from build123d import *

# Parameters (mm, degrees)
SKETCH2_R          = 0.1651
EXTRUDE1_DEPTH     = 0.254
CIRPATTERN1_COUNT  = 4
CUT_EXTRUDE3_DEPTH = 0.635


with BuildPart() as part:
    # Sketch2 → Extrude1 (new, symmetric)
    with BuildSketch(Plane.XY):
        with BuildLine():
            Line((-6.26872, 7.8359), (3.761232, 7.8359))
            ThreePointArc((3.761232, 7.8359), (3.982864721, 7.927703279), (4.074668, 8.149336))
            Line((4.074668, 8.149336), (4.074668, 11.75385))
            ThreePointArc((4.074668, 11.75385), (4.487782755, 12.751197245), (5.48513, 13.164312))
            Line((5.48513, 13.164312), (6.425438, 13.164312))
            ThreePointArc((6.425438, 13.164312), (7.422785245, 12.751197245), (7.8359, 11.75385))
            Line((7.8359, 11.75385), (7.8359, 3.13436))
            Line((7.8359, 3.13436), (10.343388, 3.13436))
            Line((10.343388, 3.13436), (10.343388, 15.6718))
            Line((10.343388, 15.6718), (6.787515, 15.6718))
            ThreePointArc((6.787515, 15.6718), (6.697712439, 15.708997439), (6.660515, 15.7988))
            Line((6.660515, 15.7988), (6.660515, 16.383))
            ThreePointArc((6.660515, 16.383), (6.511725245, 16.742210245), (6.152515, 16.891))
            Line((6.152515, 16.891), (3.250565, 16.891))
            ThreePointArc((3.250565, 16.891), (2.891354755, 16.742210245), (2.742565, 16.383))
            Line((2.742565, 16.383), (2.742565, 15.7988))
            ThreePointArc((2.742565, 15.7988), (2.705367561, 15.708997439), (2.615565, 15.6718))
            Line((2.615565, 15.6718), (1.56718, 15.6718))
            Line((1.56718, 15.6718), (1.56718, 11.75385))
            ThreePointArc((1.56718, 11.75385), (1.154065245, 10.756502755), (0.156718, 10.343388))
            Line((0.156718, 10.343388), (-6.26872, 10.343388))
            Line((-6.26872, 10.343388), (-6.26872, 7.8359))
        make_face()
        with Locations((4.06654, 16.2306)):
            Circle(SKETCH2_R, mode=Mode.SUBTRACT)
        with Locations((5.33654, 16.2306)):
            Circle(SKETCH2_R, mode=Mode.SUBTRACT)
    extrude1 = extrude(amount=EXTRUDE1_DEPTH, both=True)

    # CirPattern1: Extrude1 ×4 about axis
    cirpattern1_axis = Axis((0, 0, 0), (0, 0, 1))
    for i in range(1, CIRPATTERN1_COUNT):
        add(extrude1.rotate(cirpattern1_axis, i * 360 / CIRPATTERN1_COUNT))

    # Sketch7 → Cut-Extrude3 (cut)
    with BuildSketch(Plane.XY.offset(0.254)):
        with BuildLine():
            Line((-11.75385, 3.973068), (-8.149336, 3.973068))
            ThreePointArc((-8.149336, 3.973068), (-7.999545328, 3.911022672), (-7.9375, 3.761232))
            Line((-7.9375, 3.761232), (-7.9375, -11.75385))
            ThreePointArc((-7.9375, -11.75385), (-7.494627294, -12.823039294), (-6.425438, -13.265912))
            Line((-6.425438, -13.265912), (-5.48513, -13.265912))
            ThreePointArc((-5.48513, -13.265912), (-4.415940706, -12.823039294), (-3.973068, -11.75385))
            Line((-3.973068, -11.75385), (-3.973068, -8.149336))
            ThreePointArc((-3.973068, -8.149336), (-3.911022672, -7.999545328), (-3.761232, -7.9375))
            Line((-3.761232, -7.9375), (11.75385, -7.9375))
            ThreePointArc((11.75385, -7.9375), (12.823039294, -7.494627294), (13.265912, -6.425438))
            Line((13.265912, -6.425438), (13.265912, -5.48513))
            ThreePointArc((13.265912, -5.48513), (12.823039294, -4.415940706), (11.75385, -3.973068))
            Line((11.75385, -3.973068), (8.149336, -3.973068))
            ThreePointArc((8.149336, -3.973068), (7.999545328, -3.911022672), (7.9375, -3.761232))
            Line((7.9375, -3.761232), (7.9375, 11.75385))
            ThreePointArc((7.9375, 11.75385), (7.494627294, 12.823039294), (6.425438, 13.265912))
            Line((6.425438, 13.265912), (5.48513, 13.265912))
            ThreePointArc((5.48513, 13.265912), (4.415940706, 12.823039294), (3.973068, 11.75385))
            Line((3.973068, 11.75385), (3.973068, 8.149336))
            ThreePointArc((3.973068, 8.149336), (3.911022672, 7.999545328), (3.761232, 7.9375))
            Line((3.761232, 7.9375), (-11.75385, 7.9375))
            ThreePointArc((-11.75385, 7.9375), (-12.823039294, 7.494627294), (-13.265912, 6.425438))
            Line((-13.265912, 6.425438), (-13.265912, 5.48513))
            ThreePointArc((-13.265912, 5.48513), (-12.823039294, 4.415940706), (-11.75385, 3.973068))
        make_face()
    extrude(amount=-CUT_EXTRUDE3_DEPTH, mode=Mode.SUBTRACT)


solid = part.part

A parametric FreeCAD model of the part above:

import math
import FreeCAD as App
import Part
import Sketcher

V = App.Vector
Q = App.Units.Quantity

doc = App.newDocument("Part")
body = doc.addObject("PartDesign::Body", "Body")

# Sketch on XY plane
sketch1 = body.newObject("Sketcher::SketchObject", "Sketch")
sketch1.AttachmentSupport = (doc.getObject("XY_Plane"), [""])
sketch1.MapMode = "FlatFace"
sketch1.addGeometry(Part.LineSegment(V(-6.27, 7.84, 0), V(3.76, 7.84, 0)), False)
sketch1.addGeometry(Part.ArcOfCircle(Part.Circle(V(3.76, 8.15, 0), V(0, 0, 1), 0.31), math.radians(-90), math.radians(0)), False)
sketch1.addGeometry(Part.LineSegment(V(4.07, 8.15, 0), V(4.07, 11.75, 0)), False)
sketch1.addGeometry(Part.ArcOfCircle(Part.Circle(V(5.49, 11.75, 0), V(0, 0, 1), 1.41), math.radians(90), math.radians(180)), False)
sketch1.addGeometry(Part.LineSegment(V(5.49, 13.16, 0), V(6.43, 13.16, 0)), False)
sketch1.addGeometry(Part.ArcOfCircle(Part.Circle(V(6.43, 11.75, 0), V(0, 0, 1), 1.41), math.radians(0), math.radians(90)), False)
sketch1.addGeometry(Part.LineSegment(V(7.84, 11.75, 0), V(7.84, 3.13, 0)), False)
sketch1.addGeometry(Part.LineSegment(V(7.84, 3.13, 0), V(10.34, 3.13, 0)), False)
sketch1.addGeometry(Part.LineSegment(V(10.34, 3.13, 0), V(10.34, 15.67, 0)), False)
sketch1.addGeometry(Part.LineSegment(V(10.34, 15.67, 0), V(6.79, 15.67, 0)), False)
sketch1.addGeometry(Part.ArcOfCircle(Part.Circle(V(6.79, 15.8, 0), V(0, 0, 1), 0.13), math.radians(-180), math.radians(-90)), False)
sketch1.addGeometry(Part.LineSegment(V(6.66, 15.8, 0), V(6.66, 16.38, 0)), False)
sketch1.addGeometry(Part.ArcOfCircle(Part.Circle(V(6.15, 16.38, 0), V(0, 0, 1), 0.51), math.radians(0), math.radians(90)), False)
sketch1.addGeometry(Part.LineSegment(V(6.15, 16.89, 0), V(3.25, 16.89, 0)), False)
sketch1.addGeometry(Part.ArcOfCircle(Part.Circle(V(3.25, 16.38, 0), V(0, 0, 1), 0.51), math.radians(90), math.radians(180)), False)
sketch1.addGeometry(Part.LineSegment(V(2.74, 16.38, 0), V(2.74, 15.8, 0)), False)
sketch1.addGeometry(Part.ArcOfCircle(Part.Circle(V(2.62, 15.8, 0), V(0, 0, 1), 0.13), math.radians(-90), math.radians(0)), False)
sketch1.addGeometry(Part.LineSegment(V(2.62, 15.67, 0), V(1.57, 15.67, 0)), False)
sketch1.addGeometry(Part.LineSegment(V(1.57, 15.67, 0), V(1.57, 11.75, 0)), False)
sketch1.addGeometry(Part.ArcOfCircle(Part.Circle(V(0.16, 11.75, 0), V(0, 0, 1), 1.41), math.radians(-90), math.radians(0)), False)
sketch1.addGeometry(Part.LineSegment(V(0.16, 10.34, 0), V(-6.27, 10.34, 0)), False)
sketch1.addGeometry(Part.LineSegment(V(-6.27, 10.34, 0), V(-6.27, 7.84, 0)), False)
sketch1.addGeometry(Part.Circle(V(4.07, 16.23, 0), V(0, 0, 1), 0.17), False)
sketch1.addGeometry(Part.Circle(V(5.34, 16.23, 0), V(0, 0, 1), 0.17), False)
sketch1.addConstraint(Sketcher.Constraint("Tangent", 0, 2, 1, 1))
sketch1.addConstraint(Sketcher.Constraint("Tangent", 1, 2, 2, 1))
sketch1.addConstraint(Sketcher.Constraint("Tangent", 2, 2, 3, 2))
sketch1.addConstraint(Sketcher.Constraint("Tangent", 3, 1, 4, 1))
sketch1.addConstraint(Sketcher.Constraint("Tangent", 4, 2, 5, 2))
sketch1.addConstraint(Sketcher.Constraint("Tangent", 5, 1, 6, 1))
sketch1.addConstraint(Sketcher.Constraint("Coincident", 6, 2, 7, 1))
sketch1.addConstraint(Sketcher.Constraint("Coincident", 7, 2, 8, 1))
sketch1.addConstraint(Sketcher.Constraint("Coincident", 8, 2, 9, 1))
sketch1.addConstraint(Sketcher.Constraint("Tangent", 9, 2, 10, 2))
sketch1.addConstraint(Sketcher.Constraint("Tangent", 10, 1, 11, 1))
sketch1.addConstraint(Sketcher.Constraint("Tangent", 11, 2, 12, 1))
sketch1.addConstraint(Sketcher.Constraint("Tangent", 12, 2, 13, 1))
sketch1.addConstraint(Sketcher.Constraint("Tangent", 13, 2, 14, 1))
sketch1.addConstraint(Sketcher.Constraint("Tangent", 14, 2, 15, 1))
sketch1.addConstraint(Sketcher.Constraint("Tangent", 15, 2, 16, 2))
sketch1.addConstraint(Sketcher.Constraint("Tangent", 16, 1, 17, 1))
sketch1.addConstraint(Sketcher.Constraint("Coincident", 17, 2, 18, 1))
sketch1.addConstraint(Sketcher.Constraint("Tangent", 18, 2, 19, 2))
sketch1.addConstraint(Sketcher.Constraint("Tangent", 19, 1, 20, 1))
sketch1.addConstraint(Sketcher.Constraint("Coincident", 20, 2, 21, 1))
sketch1.addConstraint(Sketcher.Constraint("Coincident", 21, 2, 0, 1))
sketch1.addConstraint(Sketcher.Constraint("Horizontal", 0))
sketch1.addConstraint(Sketcher.Constraint("Vertical", 2))
sketch1.addConstraint(Sketcher.Constraint("Horizontal", 4))
sketch1.addConstraint(Sketcher.Constraint("Vertical", 6))
sketch1.addConstraint(Sketcher.Constraint("Horizontal", 7))
sketch1.addConstraint(Sketcher.Constraint("Vertical", 8))
sketch1.addConstraint(Sketcher.Constraint("Horizontal", 9))
sketch1.addConstraint(Sketcher.Constraint("Vertical", 11))
sketch1.addConstraint(Sketcher.Constraint("Horizontal", 13))
sketch1.addConstraint(Sketcher.Constraint("Vertical", 15))
sketch1.addConstraint(Sketcher.Constraint("Horizontal", 17))
sketch1.addConstraint(Sketcher.Constraint("Vertical", 18))
sketch1.addConstraint(Sketcher.Constraint("Horizontal", 20))
sketch1.addConstraint(Sketcher.Constraint("Vertical", 21))
sketch1.addConstraint(Sketcher.Constraint("Equal", 3, 5))
sketch1.addConstraint(Sketcher.Constraint("Equal", 12, 14))
sketch1.addConstraint(Sketcher.Constraint("Equal", 10, 16))
sketch1.addConstraint(Sketcher.Constraint("Equal", 5, 19))
sketch1.addConstraint(Sketcher.Constraint("Equal", 22, 23))
sketch1.addConstraint(Sketcher.Constraint("Horizontal", 10, 3, 16, 3))
sketch1.addConstraint(Sketcher.Constraint("Horizontal", 5, 3, 19, 3))
sketch1.addConstraint(Sketcher.Constraint("Horizontal", 22, 3, 23, 3))
sketch1.addConstraint(Sketcher.Constraint("Equal", 7, 21))
sketch1.addConstraint(Sketcher.Constraint("Radius", 12, Q("0.02 in")))
sketch1.addConstraint(Sketcher.Constraint("Diameter", 22, Q("0.013 in")))
sketch1.addConstraint(Sketcher.Constraint("Radius", 10, Q("0.005 in")))
sketch1.addConstraint(Sketcher.Constraint("DistanceY", 11, 1, 11, 2, Q("0.023 in")))
sketch1.addConstraint(Sketcher.Constraint("DistanceX", 22, 3, 23, 3, Q("0.05 in")))
sketch1.addConstraint(Sketcher.Constraint("DistanceY", 8, 1, 8, 2, Q("0.4936 in")))
sketch1.addConstraint(Sketcher.Constraint("DistanceY", -1, 1, 10, 3, Q("0.622 in")))
sketch1.addConstraint(Sketcher.Constraint("DistanceY", -1, 1, 22, 3, Q("0.639 in")))
sketch1.addConstraint(Sketcher.Constraint("Radius", 3, Q("1.410462 mm")))
sketch1.addConstraint(Sketcher.Constraint("DistanceX", -1, 1, 22, 3, Q("0.1601 in")))
sketch1.addConstraint(Sketcher.Constraint("DistanceY", -1, 1, 0, 2, Q("0.3085 in")))
sketch1.addConstraint(Sketcher.Constraint("DistanceX", -1, 1, 5, 1, Q("0.3085 in")))
sketch1.addConstraint(Sketcher.Constraint("DistanceX", -1, 1, 17, 2, Q("0.0617 in")))
sketch1.addConstraint(Sketcher.Constraint("DistanceX", 20, 2, -1, 1, Q("0.2468 in")))
sketch1.addConstraint(Sketcher.Constraint("Radius", 1, Q("0.313436 mm")))
sketch1.addConstraint(Sketcher.Constraint("DistanceX", 1, 2, 7, 2, Q("0.2468 in")))
sketch1.addConstraint(Sketcher.Constraint("DistanceX", 13, 2, 13, 1, Q("2.90195 mm")))
sketch1.addConstraint(Sketcher.Constraint("DistanceY", 6, 2, 6, 1, Q("8.61949 mm")))
sketch1.addConstraint(Sketcher.Constraint("DistanceX", 9, 2, 9, 1, Q("3.555873 mm")))
pad1 = body.newObject("PartDesign::Pad", "Pad")
pad1.Profile = sketch1
pad1.Length = Q("0.02 in")
pad1.Midplane = True
doc.recompute()

polarpattern = body.newObject("PartDesign::PolarPattern", "PolarPattern")
polarpattern.Originals = [pad1]
polarpattern.Axis = (doc.getObject("Z_Axis"), [""])
polarpattern.Angle = 360
polarpattern.Occurrences = 4
body.Tip = polarpattern

# Sketch on XY plane
sketch2 = body.newObject("Sketcher::SketchObject", "Sketch001")
sketch2.AttachmentSupport = (doc.getObject("XY_Plane"), [""])
sketch2.MapMode = "FlatFace"
sketch2.AttachmentOffset = App.Placement(V(0, 0, 0.01 * 25.4), App.Rotation())
sketch2.addGeometry(Part.LineSegment(V(-11.75, 3.97, 0), V(-8.15, 3.97, 0)), False)
sketch2.addGeometry(Part.ArcOfCircle(Part.Circle(V(-8.15, 3.76, 0), V(0, 0, 1), 0.21), math.radians(0), math.radians(90)), False)
sketch2.addGeometry(Part.LineSegment(V(-7.94, 3.76, 0), V(-7.94, -11.75, 0)), False)
sketch2.addGeometry(Part.ArcOfCircle(Part.Circle(V(-6.43, -11.75, 0), V(0, 0, 1), 1.51), math.radians(180), math.radians(270)), False)
sketch2.addGeometry(Part.LineSegment(V(-6.43, -13.27, 0), V(-5.49, -13.27, 0)), False)
sketch2.addGeometry(Part.ArcOfCircle(Part.Circle(V(-5.49, -11.75, 0), V(0, 0, 1), 1.51), math.radians(-90), math.radians(0)), False)
sketch2.addGeometry(Part.LineSegment(V(-3.97, -11.75, 0), V(-3.97, -8.15, 0)), False)
sketch2.addGeometry(Part.ArcOfCircle(Part.Circle(V(-3.76, -8.15, 0), V(0, 0, 1), 0.21), math.radians(90), math.radians(180)), False)
sketch2.addGeometry(Part.LineSegment(V(-3.76, -7.94, 0), V(11.75, -7.94, 0)), False)
sketch2.addGeometry(Part.ArcOfCircle(Part.Circle(V(11.75, -6.43, 0), V(0, 0, 1), 1.51), math.radians(-90), math.radians(0)), False)
sketch2.addGeometry(Part.LineSegment(V(13.27, -6.43, 0), V(13.27, -5.49, 0)), False)
sketch2.addGeometry(Part.ArcOfCircle(Part.Circle(V(11.75, -5.49, 0), V(0, 0, 1), 1.51), math.radians(0), math.radians(90)), False)
sketch2.addGeometry(Part.LineSegment(V(11.75, -3.97, 0), V(8.15, -3.97, 0)), False)
sketch2.addGeometry(Part.ArcOfCircle(Part.Circle(V(8.15, -3.76, 0), V(0, 0, 1), 0.21), math.radians(180), math.radians(270)), False)
sketch2.addGeometry(Part.LineSegment(V(7.94, -3.76, 0), V(7.94, 11.75, 0)), False)
sketch2.addGeometry(Part.ArcOfCircle(Part.Circle(V(6.43, 11.75, 0), V(0, 0, 1), 1.51), math.radians(0), math.radians(90)), False)
sketch2.addGeometry(Part.LineSegment(V(6.43, 13.27, 0), V(5.49, 13.27, 0)), False)
sketch2.addGeometry(Part.ArcOfCircle(Part.Circle(V(5.49, 11.75, 0), V(0, 0, 1), 1.51), math.radians(90), math.radians(180)), False)
sketch2.addGeometry(Part.LineSegment(V(3.97, 11.75, 0), V(3.97, 8.15, 0)), False)
sketch2.addGeometry(Part.ArcOfCircle(Part.Circle(V(3.76, 8.15, 0), V(0, 0, 1), 0.21), math.radians(-90), math.radians(0)), False)
sketch2.addGeometry(Part.LineSegment(V(3.76, 7.94, 0), V(-11.75, 7.94, 0)), False)
sketch2.addGeometry(Part.ArcOfCircle(Part.Circle(V(-11.75, 6.43, 0), V(0, 0, 1), 1.51), math.radians(90), math.radians(180)), False)
sketch2.addGeometry(Part.LineSegment(V(-13.27, 6.43, 0), V(-13.27, 5.49, 0)), False)
sketch2.addGeometry(Part.ArcOfCircle(Part.Circle(V(-11.75, 5.49, 0), V(0, 0, 1), 1.51), math.radians(180), math.radians(270)), False)
sketch2.addConstraint(Sketcher.Constraint("Tangent", 0, 2, 1, 2))
sketch2.addConstraint(Sketcher.Constraint("Tangent", 1, 1, 2, 1))
sketch2.addConstraint(Sketcher.Constraint("Tangent", 2, 2, 3, 1))
sketch2.addConstraint(Sketcher.Constraint("Tangent", 3, 2, 4, 1))
sketch2.addConstraint(Sketcher.Constraint("Tangent", 4, 2, 5, 1))
sketch2.addConstraint(Sketcher.Constraint("Tangent", 5, 2, 6, 1))
sketch2.addConstraint(Sketcher.Constraint("Tangent", 6, 2, 7, 2))
sketch2.addConstraint(Sketcher.Constraint("Tangent", 7, 1, 8, 1))
sketch2.addConstraint(Sketcher.Constraint("Tangent", 8, 2, 9, 1))
sketch2.addConstraint(Sketcher.Constraint("Tangent", 9, 2, 10, 1))
sketch2.addConstraint(Sketcher.Constraint("Tangent", 10, 2, 11, 1))
sketch2.addConstraint(Sketcher.Constraint("Tangent", 11, 2, 12, 1))
sketch2.addConstraint(Sketcher.Constraint("Tangent", 12, 2, 13, 2))
sketch2.addConstraint(Sketcher.Constraint("Tangent", 13, 1, 14, 1))
sketch2.addConstraint(Sketcher.Constraint("Tangent", 14, 2, 15, 1))
sketch2.addConstraint(Sketcher.Constraint("Tangent", 15, 2, 16, 1))
sketch2.addConstraint(Sketcher.Constraint("Tangent", 16, 2, 17, 1))
sketch2.addConstraint(Sketcher.Constraint("Tangent", 17, 2, 18, 1))
sketch2.addConstraint(Sketcher.Constraint("Tangent", 18, 2, 19, 2))
sketch2.addConstraint(Sketcher.Constraint("Tangent", 19, 1, 20, 1))
sketch2.addConstraint(Sketcher.Constraint("Tangent", 20, 2, 21, 1))
sketch2.addConstraint(Sketcher.Constraint("Tangent", 21, 2, 22, 1))
sketch2.addConstraint(Sketcher.Constraint("Tangent", 22, 2, 23, 1))
sketch2.addConstraint(Sketcher.Constraint("Tangent", 23, 2, 0, 1))
sketch2.addConstraint(Sketcher.Constraint("Horizontal", 0))
sketch2.addConstraint(Sketcher.Constraint("Vertical", 2))
sketch2.addConstraint(Sketcher.Constraint("Horizontal", 4))
sketch2.addConstraint(Sketcher.Constraint("Vertical", 6))
sketch2.addConstraint(Sketcher.Constraint("Horizontal", 8))
sketch2.addConstraint(Sketcher.Constraint("Vertical", 10))
sketch2.addConstraint(Sketcher.Constraint("Horizontal", 12))
sketch2.addConstraint(Sketcher.Constraint("Vertical", 14))
sketch2.addConstraint(Sketcher.Constraint("Horizontal", 16))
sketch2.addConstraint(Sketcher.Constraint("Vertical", 18))
sketch2.addConstraint(Sketcher.Constraint("Horizontal", 20))
sketch2.addConstraint(Sketcher.Constraint("Vertical", 22))
sketch2.addConstraint(Sketcher.Constraint("Equal", 3, 5))
sketch2.addConstraint(Sketcher.Constraint("Equal", 1, 7))
sketch2.addConstraint(Sketcher.Constraint("Equal", 5, 9))
sketch2.addConstraint(Sketcher.Constraint("Equal", 9, 11))
sketch2.addConstraint(Sketcher.Constraint("Equal", 7, 13))
sketch2.addConstraint(Sketcher.Constraint("Equal", 11, 15))
sketch2.addConstraint(Sketcher.Constraint("Equal", 15, 17))
sketch2.addConstraint(Sketcher.Constraint("Equal", 13, 19))
sketch2.addConstraint(Sketcher.Constraint("Equal", 17, 21))
sketch2.addConstraint(Sketcher.Constraint("Equal", 21, 23))
sketch2.addConstraint(Sketcher.Constraint("Symmetric", 1, 3, 13, 3, -1, 1))
sketch2.addConstraint(Sketcher.Constraint("Symmetric", 5, 3, 17, 3, -1, 1))
sketch2.addConstraint(Sketcher.Constraint("Symmetric", 9, 3, 21, 3, -1, 1))
sketch2.addConstraint(Sketcher.Constraint("Equal", 20, 2))
sketch2.addConstraint(Sketcher.Constraint("Equal", 12, 6))
sketch2.addConstraint(Sketcher.Constraint("Equal", 16, 10))
sketch2.addConstraint(Sketcher.Constraint("DistanceX", 1, 1, -1, 1, Q("0.3125 in")))
sketch2.addConstraint(Sketcher.Constraint("Radius", 3, Q("1.512062 mm")))
sketch2.addConstraint(Sketcher.Constraint("Radius", 1, Q("0.211836 mm")))
sketch2.addConstraint(Sketcher.Constraint("DistanceX", 5, 3, 9, 3, Q("0.6787 in")))
sketch2.addConstraint(Sketcher.Constraint("DistanceY", 5, 3, 11, 3, Q("0.2468 in")))
pocket1 = body.newObject("PartDesign::Pocket", "Pocket")
pocket1.Profile = sketch2
pocket1.Length = Q("0.025 in")

doc.recompute()
